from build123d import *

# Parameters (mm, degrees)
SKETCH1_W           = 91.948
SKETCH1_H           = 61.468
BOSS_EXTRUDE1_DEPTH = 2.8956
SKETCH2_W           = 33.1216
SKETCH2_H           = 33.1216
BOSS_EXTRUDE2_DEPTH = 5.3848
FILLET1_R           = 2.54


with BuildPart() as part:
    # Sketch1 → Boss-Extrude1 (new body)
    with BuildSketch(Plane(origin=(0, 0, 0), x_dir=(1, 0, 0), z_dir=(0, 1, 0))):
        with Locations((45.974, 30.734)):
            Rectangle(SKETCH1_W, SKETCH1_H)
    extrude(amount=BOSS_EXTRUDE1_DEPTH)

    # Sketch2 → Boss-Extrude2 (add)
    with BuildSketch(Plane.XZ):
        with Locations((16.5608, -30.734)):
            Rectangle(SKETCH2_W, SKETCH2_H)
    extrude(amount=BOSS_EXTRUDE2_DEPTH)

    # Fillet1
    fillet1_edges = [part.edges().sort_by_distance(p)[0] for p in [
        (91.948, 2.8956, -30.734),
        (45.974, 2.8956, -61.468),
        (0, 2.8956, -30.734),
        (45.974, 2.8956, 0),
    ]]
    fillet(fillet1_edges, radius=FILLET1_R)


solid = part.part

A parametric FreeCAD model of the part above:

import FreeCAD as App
import Part
import Sketcher
Q = App.Units.Quantity


def edges_at(feature, points):
    """Names of the edges that pass closest to the given points."""
    edges = feature.Shape.Edges
    near = lambda p: min(range(len(edges)), key=lambda i: edges[i].distToShape(Part.Vertex(*p))[0])
    return sorted({f"Edge{near(p) + 1}" for p in points})

doc = App.newDocument("Part")
body = doc.addObject("PartDesign::Body", "Body")

sketch1 = body.newObject("Sketcher::SketchObject", "Sketch")
sketch1.AttachmentSupport = (doc.getObject("XZ_Plane"), [""])
sketch1.MapMode = "FlatFace"
sketch1.addGeometry([
    Part.LineSegment(App.Vector(0, -61, 0), App.Vector(0, 0, 0)),
    Part.LineSegment(App.Vector(0, 0, 0), App.Vector(92, 0, 0)),
    Part.LineSegment(App.Vector(92, 0, 0), App.Vector(92, -61, 0)),
    Part.LineSegment(App.Vector(92, -61, 0), App.Vector(0, -61, 0)),
], False)
sketch1.addConstraint([
    Sketcher.Constraint("Coincident", 0, 2, 1, 1),
    Sketcher.Constraint("Coincident", 1, 2, 2, 1),
    Sketcher.Constraint("Coincident", 2, 2, 3, 1),
    Sketcher.Constraint("Coincident", 3, 2, 0, 1),
    Sketcher.Constraint("Vertical", 0),
    Sketcher.Constraint("Horizontal", 1),
    Sketcher.Constraint("Vertical", 2),
    Sketcher.Constraint("Horizontal", 3),
    Sketcher.Constraint("Coincident", 0, 2, -1, 1),
    Sketcher.Constraint("DistanceX", 1, 1, 1, 2, Q("3.62 in")),
    Sketcher.Constraint("DistanceY", 0, 1, 0, 2, Q("2.42 in")),
])
pad1 = body.newObject("PartDesign::Pad", "Pad")
pad1.Profile = sketch1
pad1.Length = Q("0.114 in")
pad1.Reversed = True

sketch2 = body.newObject("Sketcher::SketchObject", "Sketch001")
sketch2.AttachmentSupport = (doc.getObject("XZ_Plane"), [""])
sketch2.MapMode = "FlatFace"
sketch2.addGeometry([
    Part.LineSegment(App.Vector(0, -14, 0), App.Vector(0, -47, 0)),
    Part.LineSegment(App.Vector(0, -47, 0), App.Vector(33, -47, 0)),
    Part.LineSegment(App.Vector(33, -47, 0), App.Vector(33, -14, 0)),
    Part.LineSegment(App.Vector(33, -14, 0), App.Vector(0, -14, 0)),
], False)
sketch2.addConstraint([
    Sketcher.Constraint("Coincident", 0, 2, 1, 1),
    Sketcher.Constraint("Coincident", 1, 2, 2, 1),
    Sketcher.Constraint("Coincident", 2, 2, 3, 1),
    Sketcher.Constraint("Coincident", 3, 2, 0, 1),
    Sketcher.Constraint("Vertical", 0),
    Sketcher.Constraint("Horizontal", 1),
    Sketcher.Constraint("Vertical", 2),
    Sketcher.Constraint("Horizontal", 3),
    Sketcher.Constraint("PointOnObject", 0, 2, -2),
    Sketcher.Constraint("Equal", 3, 0),
    Sketcher.Constraint("DistanceX", 1, 1, 1, 2, Q("1.304 in")),
    Sketcher.Constraint("DistanceY", 0, 2, -1, 1, Q("1.862 in")),
])
pad2 = body.newObject("PartDesign::Pad", "Pad001")
pad2.Profile = sketch2
pad2.Length = Q("0.212 in")
doc.recompute()

fillet = body.newObject("PartDesign::Fillet", "Fillet")
fillet.Base = (pad2, edges_at(pad2, [
    (91.948, 2.896, -30.734),
    (45.974, 2.896, -61.468),
    (0, 2.896, -30.734),
    (45.974, 2.896, 0),
]))
fillet.Radius = Q("0.1 in")

doc.recompute()
